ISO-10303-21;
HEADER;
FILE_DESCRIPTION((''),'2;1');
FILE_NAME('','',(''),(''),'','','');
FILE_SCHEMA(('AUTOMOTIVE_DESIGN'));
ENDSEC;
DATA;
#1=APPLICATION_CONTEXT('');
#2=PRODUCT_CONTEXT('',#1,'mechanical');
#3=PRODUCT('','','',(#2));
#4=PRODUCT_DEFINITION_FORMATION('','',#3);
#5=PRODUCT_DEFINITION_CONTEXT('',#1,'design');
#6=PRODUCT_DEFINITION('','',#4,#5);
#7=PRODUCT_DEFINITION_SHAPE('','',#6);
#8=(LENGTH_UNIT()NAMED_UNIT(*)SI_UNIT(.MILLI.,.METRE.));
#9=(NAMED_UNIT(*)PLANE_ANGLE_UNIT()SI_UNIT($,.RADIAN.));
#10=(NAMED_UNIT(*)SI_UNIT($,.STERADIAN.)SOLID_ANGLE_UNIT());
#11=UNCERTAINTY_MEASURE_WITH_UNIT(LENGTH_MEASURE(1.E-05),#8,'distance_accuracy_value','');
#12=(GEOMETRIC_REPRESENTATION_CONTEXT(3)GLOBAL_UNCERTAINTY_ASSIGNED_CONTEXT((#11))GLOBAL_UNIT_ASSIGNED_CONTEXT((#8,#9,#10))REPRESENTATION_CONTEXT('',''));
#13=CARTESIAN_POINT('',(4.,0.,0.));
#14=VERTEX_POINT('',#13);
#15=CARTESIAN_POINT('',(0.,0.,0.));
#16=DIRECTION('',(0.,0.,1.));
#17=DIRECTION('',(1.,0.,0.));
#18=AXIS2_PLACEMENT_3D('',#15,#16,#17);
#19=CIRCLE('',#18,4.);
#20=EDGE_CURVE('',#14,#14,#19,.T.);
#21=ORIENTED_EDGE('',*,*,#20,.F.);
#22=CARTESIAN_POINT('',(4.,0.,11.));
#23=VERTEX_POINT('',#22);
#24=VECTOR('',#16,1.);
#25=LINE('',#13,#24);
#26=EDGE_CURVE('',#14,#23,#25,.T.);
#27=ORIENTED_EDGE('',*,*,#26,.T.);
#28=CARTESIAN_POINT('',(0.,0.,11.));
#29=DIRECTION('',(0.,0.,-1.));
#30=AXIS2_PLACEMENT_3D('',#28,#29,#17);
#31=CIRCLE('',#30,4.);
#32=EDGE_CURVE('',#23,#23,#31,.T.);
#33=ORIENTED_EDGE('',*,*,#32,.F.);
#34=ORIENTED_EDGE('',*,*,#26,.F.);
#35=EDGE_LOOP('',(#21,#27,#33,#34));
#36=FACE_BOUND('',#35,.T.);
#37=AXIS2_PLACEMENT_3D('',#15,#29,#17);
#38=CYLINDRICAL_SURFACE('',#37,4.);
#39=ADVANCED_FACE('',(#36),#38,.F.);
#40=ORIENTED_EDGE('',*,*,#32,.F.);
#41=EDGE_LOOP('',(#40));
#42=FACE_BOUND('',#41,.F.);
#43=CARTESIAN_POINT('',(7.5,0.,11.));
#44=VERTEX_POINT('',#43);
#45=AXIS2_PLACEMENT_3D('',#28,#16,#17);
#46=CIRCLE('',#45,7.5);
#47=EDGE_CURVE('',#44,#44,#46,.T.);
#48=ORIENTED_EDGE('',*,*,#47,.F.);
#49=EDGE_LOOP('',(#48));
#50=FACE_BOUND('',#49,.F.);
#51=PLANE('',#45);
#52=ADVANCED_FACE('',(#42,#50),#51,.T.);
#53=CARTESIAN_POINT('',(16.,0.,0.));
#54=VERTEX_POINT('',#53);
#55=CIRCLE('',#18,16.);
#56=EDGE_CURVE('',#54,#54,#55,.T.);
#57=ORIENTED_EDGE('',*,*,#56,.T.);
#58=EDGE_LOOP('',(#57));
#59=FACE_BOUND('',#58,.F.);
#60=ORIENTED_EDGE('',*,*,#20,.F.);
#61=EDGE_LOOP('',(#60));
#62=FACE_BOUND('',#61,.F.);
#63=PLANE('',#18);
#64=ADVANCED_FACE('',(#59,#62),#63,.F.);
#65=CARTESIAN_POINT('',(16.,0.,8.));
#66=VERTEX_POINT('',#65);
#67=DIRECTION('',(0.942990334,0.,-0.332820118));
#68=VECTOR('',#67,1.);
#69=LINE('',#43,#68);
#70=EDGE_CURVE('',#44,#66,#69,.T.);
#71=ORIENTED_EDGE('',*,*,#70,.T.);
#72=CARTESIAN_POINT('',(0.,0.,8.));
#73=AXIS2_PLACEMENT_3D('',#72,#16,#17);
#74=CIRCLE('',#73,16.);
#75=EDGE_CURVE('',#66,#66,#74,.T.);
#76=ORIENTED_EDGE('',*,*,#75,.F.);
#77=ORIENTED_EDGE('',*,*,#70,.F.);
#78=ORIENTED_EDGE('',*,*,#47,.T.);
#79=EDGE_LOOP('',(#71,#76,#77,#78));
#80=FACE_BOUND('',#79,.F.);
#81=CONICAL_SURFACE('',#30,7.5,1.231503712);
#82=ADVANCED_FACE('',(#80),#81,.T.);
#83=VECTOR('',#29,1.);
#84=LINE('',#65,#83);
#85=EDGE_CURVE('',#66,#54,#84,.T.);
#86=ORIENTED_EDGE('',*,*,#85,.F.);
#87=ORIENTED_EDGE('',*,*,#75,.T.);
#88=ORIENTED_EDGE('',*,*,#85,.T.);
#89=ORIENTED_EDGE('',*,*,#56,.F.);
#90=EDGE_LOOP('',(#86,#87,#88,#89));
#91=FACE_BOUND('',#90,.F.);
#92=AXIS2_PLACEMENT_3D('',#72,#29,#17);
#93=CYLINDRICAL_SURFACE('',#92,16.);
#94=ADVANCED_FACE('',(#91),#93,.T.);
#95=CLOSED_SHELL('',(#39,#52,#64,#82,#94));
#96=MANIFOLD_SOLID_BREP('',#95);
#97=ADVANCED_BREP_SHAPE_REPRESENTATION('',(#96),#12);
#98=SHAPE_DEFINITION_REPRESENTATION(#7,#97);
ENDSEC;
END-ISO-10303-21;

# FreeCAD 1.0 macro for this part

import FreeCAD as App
import Part
import Sketcher


def add_polygon(sketch, points):
    """Adds a closed chain of lines whose ends are joined by coincident constraints."""
    first, n = sketch.GeometryCount, len(points)
    for a, b in zip(points, points[1:] + points[:1]):
        sketch.addGeometry(Part.LineSegment(App.Vector(*a, 0), App.Vector(*b, 0)), False)
    for i in range(n):
        sketch.addConstraint(Sketcher.Constraint("Coincident", first + i, 2, first + (i + 1) % n, 1))

doc = App.newDocument("Part")
body = doc.addObject("PartDesign::Body", "Body")

sketch1 = body.newObject("Sketcher::SketchObject", "Sketch")
sketch1.AttachmentSupport = (doc.getObject("XZ_Plane"), [""])
sketch1.MapMode = "FlatFace"
add_polygon(sketch1, [(0, 11), (0, 0), (16, 0), (16, 8), (7.5, 11)])
sketch1.addConstraint([
    Sketcher.Constraint("Vertical", 0),
    Sketcher.Constraint("Horizontal", 1),
    Sketcher.Constraint("Vertical", 2),
    Sketcher.Constraint("Horizontal", 4),
    Sketcher.Constraint("Coincident", 0, 2, -1, 1),
    Sketcher.Constraint("DistanceX", 1, 1, 1, 2, 16.0),
    Sketcher.Constraint("DistanceY", 0, 2, 0, 1, 11.0),
    Sketcher.Constraint("DistanceY", 2, 1, 2, 2, 8.0),
    Sketcher.Constraint("DistanceX", 4, 2, 4, 1, 7.5),
])
revolution = body.newObject("PartDesign::Revolution", "Revolution")
revolution.Profile = sketch1
revolution.ReferenceAxis = (sketch1, ["V_Axis"])
revolution.Angle = 360

sketch2 = body.newObject("Sketcher::SketchObject", "Sketch001")
sketch2.AttachmentSupport = (doc.getObject("XY_Plane"), [""])
sketch2.MapMode = "FlatFace"
sketch2.addGeometry(Part.Circle(App.Vector(0, 0, 0), App.Vector(0, 0, 1), 4), False)
sketch2.addConstraint([
    Sketcher.Constraint("Coincident", 0, 3, -1, 1),
    Sketcher.Constraint("Diameter", 0, 8.0),
])
pocket1 = body.newObject("PartDesign::Pocket", "Pocket")
pocket1.Profile = sketch2
pocket1.Type = "ThroughAll"
pocket1.Reversed = True

doc.recompute()
